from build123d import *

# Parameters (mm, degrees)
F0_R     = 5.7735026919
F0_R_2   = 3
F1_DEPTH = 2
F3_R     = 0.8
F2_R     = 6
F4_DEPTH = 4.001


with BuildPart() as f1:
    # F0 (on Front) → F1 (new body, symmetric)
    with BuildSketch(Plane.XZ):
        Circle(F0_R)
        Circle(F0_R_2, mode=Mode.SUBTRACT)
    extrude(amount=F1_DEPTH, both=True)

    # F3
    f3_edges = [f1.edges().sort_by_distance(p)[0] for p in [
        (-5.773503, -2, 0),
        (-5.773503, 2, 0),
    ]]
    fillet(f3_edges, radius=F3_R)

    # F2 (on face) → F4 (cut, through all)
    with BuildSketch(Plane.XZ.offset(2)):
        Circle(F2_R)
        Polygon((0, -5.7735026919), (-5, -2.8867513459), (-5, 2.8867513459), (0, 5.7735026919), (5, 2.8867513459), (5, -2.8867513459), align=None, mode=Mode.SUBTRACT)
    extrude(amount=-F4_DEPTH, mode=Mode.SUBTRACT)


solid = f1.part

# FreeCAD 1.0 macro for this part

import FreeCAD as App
import Part
import Sketcher
from FreeCAD import Vector
Q = App.Units.Quantity


def edges_at(feature, points):
    """Names of the edges that pass closest to the given points."""
    edges = feature.Shape.Edges
    near = lambda p: min(range(len(edges)), key=lambda i: edges[i].distToShape(Part.Vertex(*p))[0])
    return sorted({f"Edge{near(p) + 1}" for p in points})

doc = App.newDocument("Part")
body = doc.addObject("PartDesign::Body", "Body")

sketch1 = body.newObject("Sketcher::SketchObject", "Sketch")
sketch1.AttachmentSupport = (doc.getObject("XZ_Plane"), [""])
sketch1.MapMode = "FlatFace"
sketch1.addGeometry(Part.Circle(Vector(0, 0, 0), Vector(0, 0, 1), 5.773503), False)
sketch1.addGeometry(Part.Circle(Vector(0, 0, 0), Vector(0, 0, 1), 3), False)
sketch1.addConstraint(Sketcher.Constraint("Coincident", 0, 3, -1, 1))
sketch1.addConstraint(Sketcher.Constraint("Coincident", 1, 3, -1, 1))
sketch1.addConstraint(Sketcher.Constraint("Diameter", 1, Q("6 mm")))
sketch1.addConstraint(Sketcher.Constraint("Diameter", 0, Q("11.547005 mm")))
pad1 = body.newObject("PartDesign::Pad", "Pad")
pad1.Profile = sketch1
pad1.Length = 4
pad1.Midplane = True
doc.recompute()

fillet = body.newObject("PartDesign::Fillet", "Fillet")
fillet.Base = (pad1, edges_at(pad1, [(-5.774, -2, 0), (-5.774, 2, 0)]))
fillet.Radius = 0.8

sketch2 = body.newObject("Sketcher::SketchObject", "Sketch001")
sketch2.AttachmentSupport = (doc.getObject("XZ_Plane"), [""])
sketch2.MapMode = "FlatFace"
sketch2.AttachmentOffset = App.Placement(Vector(0, 0, 2), App.Rotation())
sketch2.addGeometry(Part.Circle(Vector(0, 0, 0), Vector(0, 0, 1), 6), False)
sketch2.addGeometry(Part.LineSegment(Vector(5, -2.886751, 0), Vector(0, -5.773503, 0)), False)
sketch2.addGeometry(Part.LineSegment(Vector(0, -5.773503, 0), Vector(-5, -2.886751, 0)), False)
sketch2.addGeometry(Part.LineSegment(Vector(-5, -2.886751, 0), Vector(-5, 2.886751, 0)), False)
sketch2.addGeometry(Part.LineSegment(Vector(-5, 2.886751, 0), Vector(0, 5.773503, 0)), False)
sketch2.addGeometry(Part.LineSegment(Vector(0, 5.773503, 0), Vector(5, 2.886751, 0)), False)
sketch2.addGeometry(Part.LineSegment(Vector(5, 2.886751, 0), Vector(5, -2.886751, 0)), False)
sketch2.addConstraint(Sketcher.Constraint("Coincident", 1, 2, 2, 1))
sketch2.addConstraint(Sketcher.Constraint("Coincident", 2, 2, 3, 1))
sketch2.addConstraint(Sketcher.Constraint("Coincident", 3, 2, 4, 1))
sketch2.addConstraint(Sketcher.Constraint("Coincident", 4, 2, 5, 1))
sketch2.addConstraint(Sketcher.Constraint("Coincident", 5, 2, 6, 1))
sketch2.addConstraint(Sketcher.Constraint("Coincident", 6, 2, 1, 1))
sketch2.addConstraint(Sketcher.Constraint("Vertical", 3))
sketch2.addConstraint(Sketcher.Constraint("Vertical", 6))
sketch2.addConstraint(Sketcher.Constraint("Coincident", 0, 3, -1, 1))
sketch2.addConstraint(Sketcher.Constraint("Symmetric", 1, 2, 4, 2, -1, 1))
sketch2.addConstraint(Sketcher.Constraint("Symmetric", 2, 2, 5, 2, -1, 1))
sketch2.addConstraint(Sketcher.Constraint("PointOnObject", 1, 2, -2))
sketch2.addConstraint(Sketcher.Constraint("Parallel", 1, 4))
sketch2.addConstraint(Sketcher.Constraint("Horizontal", 3, 2, 5, 2))
sketch2.addConstraint(Sketcher.Constraint("Diameter", 0, Q("12 mm")))
sketch2.addConstraint(Sketcher.Constraint("Angle", 1, Q("-150 deg")))
sketch2.addConstraint(Sketcher.Constraint("DistanceX", 2, 2, -1, 1, Q("5 mm")))
sketch2.addConstraint(Sketcher.Constraint("DistanceY", 3, 1, 3, 2, Q("5.773503 mm")))
pocket1 = body.newObject("PartDesign::Pocket", "Pocket")
pocket1.Profile = sketch2
pocket1.Type = "ThroughAll"

doc.recompute()
